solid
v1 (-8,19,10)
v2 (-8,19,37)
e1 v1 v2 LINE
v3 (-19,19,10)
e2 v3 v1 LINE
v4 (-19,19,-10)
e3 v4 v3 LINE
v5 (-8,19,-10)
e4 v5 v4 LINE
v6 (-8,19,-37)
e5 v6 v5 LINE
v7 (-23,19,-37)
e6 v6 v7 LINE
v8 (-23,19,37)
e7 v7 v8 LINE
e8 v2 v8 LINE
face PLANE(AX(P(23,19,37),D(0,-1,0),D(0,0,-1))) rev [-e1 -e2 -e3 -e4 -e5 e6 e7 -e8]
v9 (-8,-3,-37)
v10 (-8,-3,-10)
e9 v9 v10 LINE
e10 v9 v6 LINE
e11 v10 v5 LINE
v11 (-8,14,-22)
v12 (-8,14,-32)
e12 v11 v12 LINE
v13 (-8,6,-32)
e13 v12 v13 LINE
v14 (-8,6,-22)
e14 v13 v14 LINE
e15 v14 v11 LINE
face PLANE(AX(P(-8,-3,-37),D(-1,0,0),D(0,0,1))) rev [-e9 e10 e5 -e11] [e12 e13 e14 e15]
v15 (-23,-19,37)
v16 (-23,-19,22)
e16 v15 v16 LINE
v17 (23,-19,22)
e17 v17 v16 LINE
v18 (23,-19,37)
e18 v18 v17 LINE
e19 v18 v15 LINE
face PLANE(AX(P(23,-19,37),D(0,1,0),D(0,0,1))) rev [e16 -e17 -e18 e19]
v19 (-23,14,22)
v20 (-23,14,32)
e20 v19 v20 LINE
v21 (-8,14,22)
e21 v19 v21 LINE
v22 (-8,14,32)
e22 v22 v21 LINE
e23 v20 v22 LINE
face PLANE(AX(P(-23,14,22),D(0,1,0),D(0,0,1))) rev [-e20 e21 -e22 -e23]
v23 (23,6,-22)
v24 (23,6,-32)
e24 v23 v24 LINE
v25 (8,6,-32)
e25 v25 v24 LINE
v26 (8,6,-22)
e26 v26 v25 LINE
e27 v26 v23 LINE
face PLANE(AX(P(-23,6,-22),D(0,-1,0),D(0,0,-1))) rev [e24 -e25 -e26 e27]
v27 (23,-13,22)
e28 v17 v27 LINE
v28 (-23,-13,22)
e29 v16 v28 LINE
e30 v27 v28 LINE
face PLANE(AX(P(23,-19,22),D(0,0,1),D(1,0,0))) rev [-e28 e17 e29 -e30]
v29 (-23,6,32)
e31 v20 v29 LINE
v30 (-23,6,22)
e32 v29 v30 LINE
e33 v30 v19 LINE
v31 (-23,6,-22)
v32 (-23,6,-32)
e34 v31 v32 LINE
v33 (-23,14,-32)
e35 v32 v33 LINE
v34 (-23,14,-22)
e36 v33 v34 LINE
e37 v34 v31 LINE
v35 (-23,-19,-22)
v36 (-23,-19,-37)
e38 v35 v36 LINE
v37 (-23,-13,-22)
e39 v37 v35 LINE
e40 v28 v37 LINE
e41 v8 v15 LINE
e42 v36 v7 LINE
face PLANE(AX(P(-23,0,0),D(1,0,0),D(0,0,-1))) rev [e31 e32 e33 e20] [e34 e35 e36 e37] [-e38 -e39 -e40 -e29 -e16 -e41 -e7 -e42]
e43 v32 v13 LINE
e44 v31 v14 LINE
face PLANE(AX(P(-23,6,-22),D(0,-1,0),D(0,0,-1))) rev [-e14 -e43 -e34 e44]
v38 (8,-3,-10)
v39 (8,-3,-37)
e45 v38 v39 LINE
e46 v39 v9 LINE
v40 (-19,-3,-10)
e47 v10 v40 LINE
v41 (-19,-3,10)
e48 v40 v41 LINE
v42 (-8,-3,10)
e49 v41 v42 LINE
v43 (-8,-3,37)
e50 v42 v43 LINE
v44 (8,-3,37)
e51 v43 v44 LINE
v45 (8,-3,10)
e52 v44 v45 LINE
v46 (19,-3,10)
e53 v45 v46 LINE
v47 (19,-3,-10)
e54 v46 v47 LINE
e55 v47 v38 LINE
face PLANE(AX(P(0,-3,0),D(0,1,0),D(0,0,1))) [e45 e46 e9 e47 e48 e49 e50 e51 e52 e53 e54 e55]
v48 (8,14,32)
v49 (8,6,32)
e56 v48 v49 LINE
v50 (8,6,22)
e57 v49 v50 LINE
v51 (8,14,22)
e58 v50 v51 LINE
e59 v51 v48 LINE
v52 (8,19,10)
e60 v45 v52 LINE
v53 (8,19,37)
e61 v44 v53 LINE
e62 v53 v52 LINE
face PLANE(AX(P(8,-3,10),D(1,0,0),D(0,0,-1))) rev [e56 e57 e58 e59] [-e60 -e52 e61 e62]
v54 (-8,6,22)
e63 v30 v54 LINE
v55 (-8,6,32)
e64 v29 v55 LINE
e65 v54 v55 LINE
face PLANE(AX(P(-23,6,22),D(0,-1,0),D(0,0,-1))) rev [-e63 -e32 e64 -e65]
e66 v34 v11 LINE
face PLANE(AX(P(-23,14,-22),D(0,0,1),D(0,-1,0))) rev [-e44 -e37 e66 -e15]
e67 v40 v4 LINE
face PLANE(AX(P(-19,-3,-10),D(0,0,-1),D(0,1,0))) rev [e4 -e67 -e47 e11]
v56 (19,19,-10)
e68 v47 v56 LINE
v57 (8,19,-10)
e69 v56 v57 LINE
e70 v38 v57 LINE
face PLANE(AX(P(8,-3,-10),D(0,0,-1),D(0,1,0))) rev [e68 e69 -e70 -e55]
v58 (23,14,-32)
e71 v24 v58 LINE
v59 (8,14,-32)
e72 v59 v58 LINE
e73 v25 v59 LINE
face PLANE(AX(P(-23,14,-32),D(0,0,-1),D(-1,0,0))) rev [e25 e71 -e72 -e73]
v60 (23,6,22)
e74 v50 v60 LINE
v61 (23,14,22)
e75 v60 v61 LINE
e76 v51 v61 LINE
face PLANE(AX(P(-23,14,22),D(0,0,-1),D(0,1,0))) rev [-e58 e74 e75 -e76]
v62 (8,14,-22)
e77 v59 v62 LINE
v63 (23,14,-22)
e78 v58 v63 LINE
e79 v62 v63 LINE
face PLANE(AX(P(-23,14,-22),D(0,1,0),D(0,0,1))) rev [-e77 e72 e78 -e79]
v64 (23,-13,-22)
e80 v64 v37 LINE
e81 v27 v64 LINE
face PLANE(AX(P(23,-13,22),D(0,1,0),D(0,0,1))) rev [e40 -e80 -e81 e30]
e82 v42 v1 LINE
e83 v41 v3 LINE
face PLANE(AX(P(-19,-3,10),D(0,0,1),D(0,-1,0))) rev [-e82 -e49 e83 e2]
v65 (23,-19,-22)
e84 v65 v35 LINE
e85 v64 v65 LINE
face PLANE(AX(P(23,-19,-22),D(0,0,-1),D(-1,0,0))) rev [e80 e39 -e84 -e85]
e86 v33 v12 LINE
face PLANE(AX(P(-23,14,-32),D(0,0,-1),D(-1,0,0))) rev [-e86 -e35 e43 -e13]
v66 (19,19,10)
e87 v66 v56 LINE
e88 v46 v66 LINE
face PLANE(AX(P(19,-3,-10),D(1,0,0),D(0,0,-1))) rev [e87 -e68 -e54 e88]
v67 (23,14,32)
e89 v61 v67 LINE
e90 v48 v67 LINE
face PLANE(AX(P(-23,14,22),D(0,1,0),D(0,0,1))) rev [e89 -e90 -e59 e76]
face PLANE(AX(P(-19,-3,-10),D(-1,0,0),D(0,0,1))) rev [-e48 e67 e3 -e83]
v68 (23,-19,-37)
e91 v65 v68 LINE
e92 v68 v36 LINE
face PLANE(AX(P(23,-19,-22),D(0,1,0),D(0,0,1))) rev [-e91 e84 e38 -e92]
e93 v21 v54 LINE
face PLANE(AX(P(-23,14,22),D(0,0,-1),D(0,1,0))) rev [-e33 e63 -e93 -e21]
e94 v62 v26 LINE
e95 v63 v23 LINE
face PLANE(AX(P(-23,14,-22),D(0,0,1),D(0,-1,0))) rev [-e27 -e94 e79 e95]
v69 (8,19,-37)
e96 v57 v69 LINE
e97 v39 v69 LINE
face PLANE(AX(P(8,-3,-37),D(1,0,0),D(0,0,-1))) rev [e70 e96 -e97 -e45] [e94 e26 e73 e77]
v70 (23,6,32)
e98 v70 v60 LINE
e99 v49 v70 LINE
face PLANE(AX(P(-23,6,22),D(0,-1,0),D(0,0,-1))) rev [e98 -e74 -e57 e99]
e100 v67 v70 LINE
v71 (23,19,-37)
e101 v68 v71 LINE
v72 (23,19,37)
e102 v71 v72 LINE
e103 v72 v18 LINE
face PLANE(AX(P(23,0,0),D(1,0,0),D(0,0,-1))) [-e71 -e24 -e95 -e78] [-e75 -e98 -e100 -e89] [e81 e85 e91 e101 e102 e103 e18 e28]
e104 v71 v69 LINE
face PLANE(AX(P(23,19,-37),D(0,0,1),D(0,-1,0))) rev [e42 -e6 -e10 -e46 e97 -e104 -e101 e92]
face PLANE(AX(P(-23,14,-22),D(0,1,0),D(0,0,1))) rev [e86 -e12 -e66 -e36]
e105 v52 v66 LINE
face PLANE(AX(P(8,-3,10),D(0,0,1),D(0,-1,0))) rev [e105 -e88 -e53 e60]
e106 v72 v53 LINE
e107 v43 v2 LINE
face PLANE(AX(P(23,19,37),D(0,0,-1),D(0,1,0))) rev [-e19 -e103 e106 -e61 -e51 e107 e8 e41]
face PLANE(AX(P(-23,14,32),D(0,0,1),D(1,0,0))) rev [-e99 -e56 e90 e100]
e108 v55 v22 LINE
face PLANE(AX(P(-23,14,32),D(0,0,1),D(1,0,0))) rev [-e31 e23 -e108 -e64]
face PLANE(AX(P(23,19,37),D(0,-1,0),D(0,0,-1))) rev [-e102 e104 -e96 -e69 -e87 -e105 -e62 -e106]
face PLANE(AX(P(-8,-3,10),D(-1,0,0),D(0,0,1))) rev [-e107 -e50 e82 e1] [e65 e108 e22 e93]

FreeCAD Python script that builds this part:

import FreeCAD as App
import Part
import Sketcher

V = App.Vector


def add_polygon(sketch, points):
    """Adds a closed chain of lines whose ends are joined by coincident constraints."""
    first, n = sketch.GeometryCount, len(points)
    for a, b in zip(points, points[1:] + points[:1]):
        sketch.addGeometry(Part.LineSegment(App.Vector(*a, 0), App.Vector(*b, 0)), False)
    for i in range(n):
        sketch.addConstraint(Sketcher.Constraint("Coincident", first + i, 2, first + (i + 1) % n, 1))

doc = App.newDocument("Part")
body = doc.addObject("PartDesign::Body", "Body")

# Sketch on YZ plane
sketch1 = body.newObject("Sketcher::SketchObject", "Sketch")
sketch1.AttachmentSupport = (doc.getObject("YZ_Plane"), [""])
sketch1.MapMode = "FlatFace"
add_polygon(sketch1, [(-19, -22), (-19, -37), (19, -37), (19, 37), (-19, 37), (-19, 22), (-13, 22), (-13, -22)])  # lines 0-7
sketch1.addConstraint([
    Sketcher.Constraint("Vertical", 0),
    Sketcher.Constraint("Horizontal", 1),
    Sketcher.Constraint("Vertical", 2),
    Sketcher.Constraint("Horizontal", 3),
    Sketcher.Constraint("Vertical", 4),
    Sketcher.Constraint("Horizontal", 5),
    Sketcher.Constraint("Vertical", 6),
    Sketcher.Constraint("Horizontal", 7),
    Sketcher.Constraint("Symmetric", 0, 2, 2, 2, -1, 1),
    Sketcher.Constraint("Symmetric", 4, 2, 7, 2, -1),
    Sketcher.Constraint("DistanceX", 1, 1, 1, 2, 38.0),
    Sketcher.Constraint("DistanceX", 5, 1, 5, 2, 6.0),
    Sketcher.Constraint("DistanceY", 0, 2, 0, 1, 15.0),
    Sketcher.Constraint("DistanceY", 2, 1, 2, 2, 74.0),
])
pad1 = body.newObject("PartDesign::Pad", "Pad")
pad1.Profile = sketch1
pad1.Length = 46
pad1.Midplane = True

# Sketch on XZ plane
sketch2 = body.newObject("Sketcher::SketchObject", "Sketch001")
sketch2.AttachmentSupport = (doc.getObject("XZ_Plane"), [""])
sketch2.MapMode = "FlatFace"
sketch2.AttachmentOffset = App.Placement(V(0, 0, -19), App.Rotation())
add_polygon(sketch2, [(8, -37), (-8, -37), (-8, -10), (-19, -10), (-19, 10), (-8, 10), (-8, 37), (8, 37), (8, 10), (19, 10), (19, -10), (8, -10)])  # lines 0-11
sketch2.addConstraint([
    Sketcher.Constraint("Horizontal", 0),
    Sketcher.Constraint("Vertical", 1),
    Sketcher.Constraint("Horizontal", 2),
    Sketcher.Constraint("Vertical", 3),
    Sketcher.Constraint("Horizontal", 4),
    Sketcher.Constraint("Vertical", 5),
    Sketcher.Constraint("Horizontal", 6),
    Sketcher.Constraint("Vertical", 7),
    Sketcher.Constraint("Horizontal", 8),
    Sketcher.Constraint("Vertical", 9),
    Sketcher.Constraint("Horizontal", 10),
    Sketcher.Constraint("Vertical", 11),
    Sketcher.Constraint("Symmetric", 0, 2, 6, 2, -1, 1),
    Sketcher.Constraint("Symmetric", 2, 2, 8, 2, -1, 1),
    Sketcher.Constraint("Symmetric", 4, 2, 10, 2, -1, 1),
    Sketcher.Constraint("Symmetric", 4, 2, 7, 2, -2),
    Sketcher.Constraint("DistanceX", 0, 2, 0, 1, 16.0),
    Sketcher.Constraint("DistanceX", 2, 2, 2, 1, 11.0),
    Sketcher.Constraint("DistanceY", 1, 1, 1, 2, 27.0),
    Sketcher.Constraint("DistanceY", 3, 1, 3, 2, 20.0),
])
pocket1 = body.newObject("PartDesign::Pocket", "Pocket")
pocket1.Profile = sketch2
pocket1.Length = 22
pocket1.Reversed = True

# Sketch on YZ plane
sketch3 = body.newObject("Sketcher::SketchObject", "Sketch002")
sketch3.AttachmentSupport = (doc.getObject("YZ_Plane"), [""])
sketch3.MapMode = "FlatFace"
sketch3.AttachmentOffset = App.Placement(V(0, 0, 23), App.Rotation())
add_polygon(sketch3, [(14, -22), (6, -22), (6, -32), (14, -32)])  # lines 0-3
add_polygon(sketch3, [(14, 32), (6, 32), (6, 22), (14, 22)])  # lines 4-7
sketch3.addConstraint([
    Sketcher.Constraint("Horizontal", 0),
    Sketcher.Constraint("Vertical", 1),
    Sketcher.Constraint("Horizontal", 2),
    Sketcher.Constraint("Vertical", 3),
    Sketcher.Constraint("Horizontal", 4),
    Sketcher.Constraint("Vertical", 5),
    Sketcher.Constraint("Horizontal", 6),
    Sketcher.Constraint("Vertical", 7),
    Sketcher.Constraint("Symmetric", 1, 2, 4, 2, -1),
    Sketcher.Constraint("Symmetric", 3, 2, 6, 2, -1),
    Sketcher.Constraint("DistanceX", 0, 2, 0, 1, 8.0),
    Sketcher.Constraint("DistanceY", 1, 2, 1, 1, 10.0),
    Sketcher.Constraint("DistanceX", -1, 1, 0, 2, 6.0),
    Sketcher.Constraint("DistanceY", 0, 2, -1, 1, 22.0),
])
pocket2 = body.newObject("PartDesign::Pocket", "Pocket001")
pocket2.Profile = sketch3
pocket2.Type = "ThroughAll"

doc.recompute()
